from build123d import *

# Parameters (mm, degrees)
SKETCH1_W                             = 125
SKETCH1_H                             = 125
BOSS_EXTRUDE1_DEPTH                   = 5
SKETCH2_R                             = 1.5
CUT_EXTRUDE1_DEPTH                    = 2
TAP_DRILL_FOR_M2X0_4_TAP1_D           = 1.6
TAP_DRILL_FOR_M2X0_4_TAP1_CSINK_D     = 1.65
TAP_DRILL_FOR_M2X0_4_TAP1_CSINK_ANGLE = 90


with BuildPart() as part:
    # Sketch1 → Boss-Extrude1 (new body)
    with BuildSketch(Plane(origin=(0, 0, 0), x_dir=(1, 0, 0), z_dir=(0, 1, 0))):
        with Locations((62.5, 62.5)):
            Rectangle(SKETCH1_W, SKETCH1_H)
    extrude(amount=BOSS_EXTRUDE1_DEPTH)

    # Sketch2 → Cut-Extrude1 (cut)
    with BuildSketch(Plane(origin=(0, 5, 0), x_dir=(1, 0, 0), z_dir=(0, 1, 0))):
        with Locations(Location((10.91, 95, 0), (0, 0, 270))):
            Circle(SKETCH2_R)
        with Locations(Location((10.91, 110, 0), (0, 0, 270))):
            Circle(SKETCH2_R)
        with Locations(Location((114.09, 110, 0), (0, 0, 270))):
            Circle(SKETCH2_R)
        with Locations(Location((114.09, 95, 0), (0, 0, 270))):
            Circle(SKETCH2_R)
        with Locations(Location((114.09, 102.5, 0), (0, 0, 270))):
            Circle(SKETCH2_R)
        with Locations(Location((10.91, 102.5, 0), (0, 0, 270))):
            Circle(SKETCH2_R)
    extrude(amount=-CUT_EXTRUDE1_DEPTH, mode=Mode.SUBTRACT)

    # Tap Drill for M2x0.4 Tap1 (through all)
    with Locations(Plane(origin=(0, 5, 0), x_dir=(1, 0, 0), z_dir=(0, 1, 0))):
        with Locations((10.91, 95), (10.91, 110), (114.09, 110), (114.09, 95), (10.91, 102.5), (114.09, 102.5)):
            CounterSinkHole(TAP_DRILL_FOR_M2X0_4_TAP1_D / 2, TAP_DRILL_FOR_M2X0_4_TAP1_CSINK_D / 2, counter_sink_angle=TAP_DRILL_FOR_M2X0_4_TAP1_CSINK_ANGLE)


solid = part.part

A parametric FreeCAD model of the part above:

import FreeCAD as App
import Part
import Sketcher
from FreeCAD import Vector


def add_polygon(sketch, points):
    """Adds a closed chain of lines whose ends are joined by coincident constraints."""
    first, n = sketch.GeometryCount, len(points)
    for a, b in zip(points, points[1:] + points[:1]):
        sketch.addGeometry(Part.LineSegment(App.Vector(*a, 0), App.Vector(*b, 0)), False)
    for i in range(n):
        sketch.addConstraint(Sketcher.Constraint("Coincident", first + i, 2, first + (i + 1) % n, 1))

doc = App.newDocument("Part")
params = doc.addObject("Spreadsheet::Sheet", "Params")
for row, (alias, value) in enumerate([
    ("sketch1_width", "125 mm"),
    ("pad1_length", "5 mm"),
    ("sketch2_diameter", "3 mm"),
    ("pocket1_length", "2 mm"),
    ("sketch3_diameter", "1.6 mm"),
    ("hole_diameter", "1.6 mm"),
    ("hole_csink_diameter", "1.65 mm"),
], start=1):
    params.set(f"A{row}", alias)
    params.set(f"B{row}", "=" + value)
    params.setAlias(f"B{row}", alias)

body = doc.addObject("PartDesign::Body", "Body")

# Sketch on XZ plane
sketch1 = doc.addObject("Sketcher::SketchObject", "Sketch")
body.addObject(sketch1)
sketch1.AttachmentSupport = (doc.XZ_Plane, [""])
sketch1.MapMode = "FlatFace"
add_polygon(sketch1, [(0, -125), (0, 0), (125, 0), (125, -125)])  # lines 0-3
sketch1.addConstraint(Sketcher.Constraint("Vertical", 0))
sketch1.addConstraint(Sketcher.Constraint("Horizontal", 1))
sketch1.addConstraint(Sketcher.Constraint("Vertical", 2))
sketch1.addConstraint(Sketcher.Constraint("Horizontal", 3))
sketch1.addConstraint(Sketcher.Constraint("Coincident", 0, 2, -1, 1))
sketch1.addConstraint(Sketcher.Constraint("Equal", 3, 0))
sketch1.addConstraint(Sketcher.Constraint("DistanceX", 1, 1, 1, 2, 125.0))
sketch1.setExpression("Constraints[10]", "Params.sketch1_width")
pad1 = doc.addObject("PartDesign::Pad", "Pad")
body.addObject(pad1)
pad1.Profile = sketch1
pad1.setExpression("Length", "Params.pad1_length")
pad1.Reversed = True

# Sketch on XZ plane
sketch2 = doc.addObject("Sketcher::SketchObject", "Sketch001")
body.addObject(sketch2)
sketch2.AttachmentSupport = (doc.XZ_Plane, [""])
sketch2.MapMode = "FlatFace"
sketch2.AttachmentOffset = App.Placement(Vector(0, 0, -5), App.Rotation())
sketch2.addGeometry(Part.Circle(Vector(10.9, -95, 0), Vector(0, 0, 1), 1.5), False)
sketch2.addGeometry(Part.Circle(Vector(10.9, -110, 0), Vector(0, 0, 1), 1.5), False)
sketch2.addGeometry(Part.Circle(Vector(114.1, -110, 0), Vector(0, 0, 1), 1.5), False)
sketch2.addGeometry(Part.Circle(Vector(114.1, -95, 0), Vector(0, 0, 1), 1.5), False)
sketch2.addGeometry(Part.Circle(Vector(114.1, -102.5, 0), Vector(0, 0, 1), 1.5), False)
sketch2.addGeometry(Part.Circle(Vector(10.9, -102.5, 0), Vector(0, 0, 1), 1.5), False)
sketch2.addConstraint(Sketcher.Constraint("Equal", 0, 1))
sketch2.addConstraint(Sketcher.Constraint("Equal", 1, 2))
sketch2.addConstraint(Sketcher.Constraint("Equal", 2, 3))
sketch2.addConstraint(Sketcher.Constraint("Equal", 3, 4))
sketch2.addConstraint(Sketcher.Constraint("Equal", 4, 5))
sketch2.addConstraint(Sketcher.Constraint("Horizontal", 1, 3, 2, 3))
sketch2.addConstraint(Sketcher.Constraint("Horizontal", 0, 3, 3, 3))
sketch2.addConstraint(Sketcher.Constraint("Horizontal", 4, 3, 5, 3))
sketch2.addConstraint(Sketcher.Constraint("Vertical", 0, 3, 1, 3))
sketch2.addConstraint(Sketcher.Constraint("Vertical", 2, 3, 3, 3))
sketch2.addConstraint(Sketcher.Constraint("Vertical", 3, 3, 4, 3))
sketch2.addConstraint(Sketcher.Constraint("Vertical", 1, 3, 5, 3))
sketch2.addConstraint(Sketcher.Constraint("Diameter", 0, 3.0))
sketch2.addConstraint(Sketcher.Constraint("DistanceY", 0, 3, -1, 1, 95.0))
sketch2.addConstraint(Sketcher.Constraint("DistanceY", 1, 3, -1, 1, 110.0))
sketch2.addConstraint(Sketcher.Constraint("DistanceY", 4, 3, -1, 1, 102.5))
sketch2.addConstraint(Sketcher.Constraint("DistanceX", -1, 1, 0, 3, 10.91))
sketch2.addConstraint(Sketcher.Constraint("DistanceX", -1, 1, 2, 3, 114.09))
sketch2.setExpression("Constraints[12]", "Params.sketch2_diameter")
pocket1 = doc.addObject("PartDesign::Pocket", "Pocket")
body.addObject(pocket1)
pocket1.Profile = sketch2
pocket1.setExpression("Length", "Params.pocket1_length")
pocket1.Reversed = True

# Sketch on XZ plane
sketch3 = doc.addObject("Sketcher::SketchObject", "Sketch002")
body.addObject(sketch3)
sketch3.AttachmentSupport = (doc.XZ_Plane, [""])
sketch3.MapMode = "FlatFace"
sketch3.AttachmentOffset = App.Placement(Vector(0, 0, -5), App.Rotation())
sketch3.addGeometry(Part.Circle(Vector(10.9, -95, 0), Vector(0, 0, 1), 0.8), False)
sketch3.addGeometry(Part.Circle(Vector(10.9, -110, 0), Vector(0, 0, 1), 0.8), False)
sketch3.addGeometry(Part.Circle(Vector(114.1, -110, 0), Vector(0, 0, 1), 0.8), False)
sketch3.addGeometry(Part.Circle(Vector(114.1, -95, 0), Vector(0, 0, 1), 0.8), False)
sketch3.addGeometry(Part.Circle(Vector(10.9, -102.5, 0), Vector(0, 0, 1), 0.8), False)
sketch3.addGeometry(Part.Circle(Vector(114.1, -102.5, 0), Vector(0, 0, 1), 0.8), False)
sketch3.addConstraint(Sketcher.Constraint("Equal", 0, 1))
sketch3.addConstraint(Sketcher.Constraint("Equal", 1, 2))
sketch3.addConstraint(Sketcher.Constraint("Equal", 2, 3))
sketch3.addConstraint(Sketcher.Constraint("Equal", 3, 4))
sketch3.addConstraint(Sketcher.Constraint("Equal", 4, 5))
sketch3.addConstraint(Sketcher.Constraint("Horizontal", 1, 3, 2, 3))
sketch3.addConstraint(Sketcher.Constraint("Horizontal", 0, 3, 3, 3))
sketch3.addConstraint(Sketcher.Constraint("Horizontal", 4, 3, 5, 3))
sketch3.addConstraint(Sketcher.Constraint("Vertical", 0, 3, 1, 3))
sketch3.addConstraint(Sketcher.Constraint("Vertical", 2, 3, 3, 3))
sketch3.addConstraint(Sketcher.Constraint("Vertical", 1, 3, 4, 3))
sketch3.addConstraint(Sketcher.Constraint("Vertical", 3, 3, 5, 3))
sketch3.addConstraint(Sketcher.Constraint("Diameter", 0, 1.6))
sketch3.addConstraint(Sketcher.Constraint("DistanceY", 0, 3, -1, 1, 95.0))
sketch3.addConstraint(Sketcher.Constraint("DistanceY", 1, 3, -1, 1, 110.0))
sketch3.addConstraint(Sketcher.Constraint("DistanceY", 4, 3, -1, 1, 102.5))
sketch3.addConstraint(Sketcher.Constraint("DistanceX", -1, 1, 0, 3, 10.91))
sketch3.addConstraint(Sketcher.Constraint("DistanceX", -1, 1, 2, 3, 114.09))
sketch3.setExpression("Constraints[12]", "Params.sketch3_diameter")
doc.recompute()
hole = doc.addObject("PartDesign::Hole", "Hole")
body.addObject(hole)
hole.Profile = sketch3
hole.ThreadType = "None"
hole.setExpression("Diameter", "Params.hole_diameter")
hole.DepthType = "ThroughAll"
hole.HoleCutType = "Countersink"
hole.setExpression("HoleCutDiameter", "Params.hole_csink_diameter")
hole.HoleCutCountersinkAngle = 90
hole.Reversed = True

doc.recompute()
